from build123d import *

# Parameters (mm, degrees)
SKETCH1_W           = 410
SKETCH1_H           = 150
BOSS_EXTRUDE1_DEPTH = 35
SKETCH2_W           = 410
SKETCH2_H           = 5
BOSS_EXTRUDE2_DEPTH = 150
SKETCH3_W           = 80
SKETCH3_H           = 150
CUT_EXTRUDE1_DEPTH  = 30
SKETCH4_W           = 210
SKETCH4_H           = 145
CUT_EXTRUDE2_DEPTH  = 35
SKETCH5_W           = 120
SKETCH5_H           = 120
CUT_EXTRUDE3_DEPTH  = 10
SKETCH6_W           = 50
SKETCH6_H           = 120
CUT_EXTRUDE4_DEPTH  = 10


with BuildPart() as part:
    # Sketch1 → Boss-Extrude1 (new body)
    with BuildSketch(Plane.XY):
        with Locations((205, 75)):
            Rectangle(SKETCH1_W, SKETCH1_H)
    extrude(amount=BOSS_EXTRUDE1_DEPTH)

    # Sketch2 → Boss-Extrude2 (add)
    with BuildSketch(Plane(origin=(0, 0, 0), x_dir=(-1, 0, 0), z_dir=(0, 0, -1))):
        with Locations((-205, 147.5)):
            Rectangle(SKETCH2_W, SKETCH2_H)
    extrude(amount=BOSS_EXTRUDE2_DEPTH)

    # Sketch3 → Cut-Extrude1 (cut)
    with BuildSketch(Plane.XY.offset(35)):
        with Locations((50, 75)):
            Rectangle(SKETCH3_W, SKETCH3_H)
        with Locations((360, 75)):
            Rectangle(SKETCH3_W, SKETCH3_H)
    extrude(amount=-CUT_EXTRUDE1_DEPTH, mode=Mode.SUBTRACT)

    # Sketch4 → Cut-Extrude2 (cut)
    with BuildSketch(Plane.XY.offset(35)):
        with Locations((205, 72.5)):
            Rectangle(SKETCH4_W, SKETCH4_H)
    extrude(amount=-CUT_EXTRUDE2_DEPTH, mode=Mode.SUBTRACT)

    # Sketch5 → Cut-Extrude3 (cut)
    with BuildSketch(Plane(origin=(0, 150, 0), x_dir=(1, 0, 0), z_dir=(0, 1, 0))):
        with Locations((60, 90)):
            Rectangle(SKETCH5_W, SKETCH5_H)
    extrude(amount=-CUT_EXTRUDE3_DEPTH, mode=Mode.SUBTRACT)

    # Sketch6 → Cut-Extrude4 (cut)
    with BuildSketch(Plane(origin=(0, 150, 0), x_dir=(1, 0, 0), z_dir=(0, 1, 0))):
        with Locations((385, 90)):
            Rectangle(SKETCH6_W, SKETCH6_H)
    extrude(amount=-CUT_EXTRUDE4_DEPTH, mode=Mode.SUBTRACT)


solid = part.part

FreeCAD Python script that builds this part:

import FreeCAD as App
import Part
import Sketcher

V = App.Vector
Q = App.Units.Quantity


def add_polygon(sketch, points):
    """Adds a closed chain of lines whose ends are joined by coincident constraints."""
    first, n = sketch.GeometryCount, len(points)
    for a, b in zip(points, points[1:] + points[:1]):
        sketch.addGeometry(Part.LineSegment(App.Vector(*a, 0), App.Vector(*b, 0)), False)
    for i in range(n):
        sketch.addConstraint(Sketcher.Constraint("Coincident", first + i, 2, first + (i + 1) % n, 1))

doc = App.newDocument("Part")
body = doc.addObject("PartDesign::Body", "Body")

# Sketch on XY plane
sketch1 = body.newObject("Sketcher::SketchObject", "Sketch")
sketch1.AttachmentSupport = (doc.getObject("XY_Plane"), [""])
sketch1.MapMode = "FlatFace"
add_polygon(sketch1, [(0, 150), (0, 0), (410, 0), (410, 150)])  # lines 0-3
sketch1.addConstraint([
    Sketcher.Constraint("Vertical", 0),
    Sketcher.Constraint("Horizontal", 1),
    Sketcher.Constraint("Vertical", 2),
    Sketcher.Constraint("Horizontal", 3),
    Sketcher.Constraint("Coincident", 0, 2, -1, 1),
    Sketcher.Constraint("DistanceX", 1, 1, 1, 2, Q("410 mm")),
    Sketcher.Constraint("DistanceY", 0, 2, 0, 1, Q("150 mm")),
])
pad1 = body.newObject("PartDesign::Pad", "Pad")
pad1.Profile = sketch1
pad1.Length = 35

# Sketch on XY plane
sketch2 = body.newObject("Sketcher::SketchObject", "Sketch001")
sketch2.AttachmentSupport = (doc.getObject("XY_Plane"), [""])
sketch2.MapMode = "FlatFace"
add_polygon(sketch2, [(410, 150), (410, 145), (0, 145), (0, 150)])  # lines 0-3
sketch2.addConstraint([
    Sketcher.Constraint("Vertical", 0),
    Sketcher.Constraint("Horizontal", 1),
    Sketcher.Constraint("Vertical", 2),
    Sketcher.Constraint("Horizontal", 3),
    Sketcher.Constraint("PointOnObject", 1, 2, -2),
    Sketcher.Constraint("DistanceX", 1, 2, 1, 1, Q("410 mm")),
    Sketcher.Constraint("DistanceY", 0, 2, 0, 1, Q("5 mm")),
    Sketcher.Constraint("DistanceY", -1, 1, 0, 2, Q("145 mm")),
])
pad2 = body.newObject("PartDesign::Pad", "Pad001")
pad2.Profile = sketch2
pad2.Length = 150
pad2.Reversed = True

# Sketch on XY plane
sketch3 = body.newObject("Sketcher::SketchObject", "Sketch002")
sketch3.AttachmentSupport = (doc.getObject("XY_Plane"), [""])
sketch3.MapMode = "FlatFace"
sketch3.AttachmentOffset = App.Placement(V(0, 0, 35), App.Rotation())
add_polygon(sketch3, [(10, 150), (10, 0), (90, 0), (90, 150)])  # lines 0-3
add_polygon(sketch3, [(320, 150), (320, 0), (400, 0), (400, 150)])  # lines 4-7
sketch3.addConstraint([
    Sketcher.Constraint("Vertical", 0),
    Sketcher.Constraint("Horizontal", 1),
    Sketcher.Constraint("Vertical", 2),
    Sketcher.Constraint("Horizontal", 3),
    Sketcher.Constraint("Vertical", 4),
    Sketcher.Constraint("Horizontal", 5),
    Sketcher.Constraint("Vertical", 6),
    Sketcher.Constraint("Horizontal", 7),
    Sketcher.Constraint("PointOnObject", 0, 2, -1),
    Sketcher.Constraint("PointOnObject", 4, 2, -1),
    Sketcher.Constraint("Horizontal", 3, 2, 6, 2),
    Sketcher.Constraint("Equal", 3, 5),
    Sketcher.Constraint("DistanceX", 1, 1, 1, 2, Q("80 mm")),
    Sketcher.Constraint("DistanceY", 0, 2, 0, 1, Q("150 mm")),
    Sketcher.Constraint("DistanceX", -1, 1, 0, 2, Q("10 mm")),
    Sketcher.Constraint("DistanceX", -1, 1, 4, 2, Q("320 mm")),
])
pocket1 = body.newObject("PartDesign::Pocket", "Pocket")
pocket1.Profile = sketch3
pocket1.Length = 30

# Sketch on XY plane
sketch4 = body.newObject("Sketcher::SketchObject", "Sketch003")
sketch4.AttachmentSupport = (doc.getObject("XY_Plane"), [""])
sketch4.MapMode = "FlatFace"
sketch4.AttachmentOffset = App.Placement(V(0, 0, 35), App.Rotation())
add_polygon(sketch4, [(100, 145), (100, 0), (310, 0), (310, 145)])  # lines 0-3
sketch4.addConstraint([
    Sketcher.Constraint("Vertical", 0),
    Sketcher.Constraint("Horizontal", 1),
    Sketcher.Constraint("Vertical", 2),
    Sketcher.Constraint("Horizontal", 3),
    Sketcher.Constraint("PointOnObject", 0, 2, -1),
    Sketcher.Constraint("DistanceX", 1, 1, 1, 2, Q("210 mm")),
    Sketcher.Constraint("DistanceY", 0, 2, 0, 1, Q("145 mm")),
    Sketcher.Constraint("DistanceX", -1, 1, 0, 2, Q("100 mm")),
])
pocket2 = body.newObject("PartDesign::Pocket", "Pocket001")
pocket2.Profile = sketch4
pocket2.Length = 35

# Sketch on XZ plane
sketch5 = body.newObject("Sketcher::SketchObject", "Sketch004")
sketch5.AttachmentSupport = (doc.getObject("XZ_Plane"), [""])
sketch5.MapMode = "FlatFace"
sketch5.AttachmentOffset = App.Placement(V(0, 0, -150), App.Rotation())
add_polygon(sketch5, [(0, -150), (0, -30), (120, -30), (120, -150)])  # lines 0-3
sketch5.addConstraint([
    Sketcher.Constraint("Vertical", 0),
    Sketcher.Constraint("Horizontal", 1),
    Sketcher.Constraint("Vertical", 2),
    Sketcher.Constraint("Horizontal", 3),
    Sketcher.Constraint("PointOnObject", 0, 2, -2),
    Sketcher.Constraint("Equal", 3, 0),
    Sketcher.Constraint("DistanceX", 1, 1, 1, 2, Q("120 mm")),
    Sketcher.Constraint("DistanceY", 0, 2, -1, 1, Q("30 mm")),
])
pocket3 = body.newObject("PartDesign::Pocket", "Pocket002")
pocket3.Profile = sketch5
pocket3.Length = 10
pocket3.Reversed = True

# Sketch on XZ plane
sketch6 = body.newObject("Sketcher::SketchObject", "Sketch005")
sketch6.AttachmentSupport = (doc.getObject("XZ_Plane"), [""])
sketch6.MapMode = "FlatFace"
sketch6.AttachmentOffset = App.Placement(V(0, 0, -150), App.Rotation())
add_polygon(sketch6, [(360, -150), (360, -30), (410, -30), (410, -150)])  # lines 0-3
sketch6.addConstraint([
    Sketcher.Constraint("Vertical", 0),
    Sketcher.Constraint("Horizontal", 1),
    Sketcher.Constraint("Vertical", 2),
    Sketcher.Constraint("Horizontal", 3),
    Sketcher.Constraint("DistanceX", 1, 1, 1, 2, Q("50 mm")),
    Sketcher.Constraint("DistanceY", 0, 1, 0, 2, Q("120 mm")),
    Sketcher.Constraint("DistanceX", -1, 1, 0, 2, Q("360 mm")),
    Sketcher.Constraint("DistanceY", 0, 2, -1, 1, Q("30 mm")),
])
pocket4 = body.newObject("PartDesign::Pocket", "Pocket003")
pocket4.Profile = sketch6
pocket4.Length = 10
pocket4.Reversed = True

doc.recompute()
